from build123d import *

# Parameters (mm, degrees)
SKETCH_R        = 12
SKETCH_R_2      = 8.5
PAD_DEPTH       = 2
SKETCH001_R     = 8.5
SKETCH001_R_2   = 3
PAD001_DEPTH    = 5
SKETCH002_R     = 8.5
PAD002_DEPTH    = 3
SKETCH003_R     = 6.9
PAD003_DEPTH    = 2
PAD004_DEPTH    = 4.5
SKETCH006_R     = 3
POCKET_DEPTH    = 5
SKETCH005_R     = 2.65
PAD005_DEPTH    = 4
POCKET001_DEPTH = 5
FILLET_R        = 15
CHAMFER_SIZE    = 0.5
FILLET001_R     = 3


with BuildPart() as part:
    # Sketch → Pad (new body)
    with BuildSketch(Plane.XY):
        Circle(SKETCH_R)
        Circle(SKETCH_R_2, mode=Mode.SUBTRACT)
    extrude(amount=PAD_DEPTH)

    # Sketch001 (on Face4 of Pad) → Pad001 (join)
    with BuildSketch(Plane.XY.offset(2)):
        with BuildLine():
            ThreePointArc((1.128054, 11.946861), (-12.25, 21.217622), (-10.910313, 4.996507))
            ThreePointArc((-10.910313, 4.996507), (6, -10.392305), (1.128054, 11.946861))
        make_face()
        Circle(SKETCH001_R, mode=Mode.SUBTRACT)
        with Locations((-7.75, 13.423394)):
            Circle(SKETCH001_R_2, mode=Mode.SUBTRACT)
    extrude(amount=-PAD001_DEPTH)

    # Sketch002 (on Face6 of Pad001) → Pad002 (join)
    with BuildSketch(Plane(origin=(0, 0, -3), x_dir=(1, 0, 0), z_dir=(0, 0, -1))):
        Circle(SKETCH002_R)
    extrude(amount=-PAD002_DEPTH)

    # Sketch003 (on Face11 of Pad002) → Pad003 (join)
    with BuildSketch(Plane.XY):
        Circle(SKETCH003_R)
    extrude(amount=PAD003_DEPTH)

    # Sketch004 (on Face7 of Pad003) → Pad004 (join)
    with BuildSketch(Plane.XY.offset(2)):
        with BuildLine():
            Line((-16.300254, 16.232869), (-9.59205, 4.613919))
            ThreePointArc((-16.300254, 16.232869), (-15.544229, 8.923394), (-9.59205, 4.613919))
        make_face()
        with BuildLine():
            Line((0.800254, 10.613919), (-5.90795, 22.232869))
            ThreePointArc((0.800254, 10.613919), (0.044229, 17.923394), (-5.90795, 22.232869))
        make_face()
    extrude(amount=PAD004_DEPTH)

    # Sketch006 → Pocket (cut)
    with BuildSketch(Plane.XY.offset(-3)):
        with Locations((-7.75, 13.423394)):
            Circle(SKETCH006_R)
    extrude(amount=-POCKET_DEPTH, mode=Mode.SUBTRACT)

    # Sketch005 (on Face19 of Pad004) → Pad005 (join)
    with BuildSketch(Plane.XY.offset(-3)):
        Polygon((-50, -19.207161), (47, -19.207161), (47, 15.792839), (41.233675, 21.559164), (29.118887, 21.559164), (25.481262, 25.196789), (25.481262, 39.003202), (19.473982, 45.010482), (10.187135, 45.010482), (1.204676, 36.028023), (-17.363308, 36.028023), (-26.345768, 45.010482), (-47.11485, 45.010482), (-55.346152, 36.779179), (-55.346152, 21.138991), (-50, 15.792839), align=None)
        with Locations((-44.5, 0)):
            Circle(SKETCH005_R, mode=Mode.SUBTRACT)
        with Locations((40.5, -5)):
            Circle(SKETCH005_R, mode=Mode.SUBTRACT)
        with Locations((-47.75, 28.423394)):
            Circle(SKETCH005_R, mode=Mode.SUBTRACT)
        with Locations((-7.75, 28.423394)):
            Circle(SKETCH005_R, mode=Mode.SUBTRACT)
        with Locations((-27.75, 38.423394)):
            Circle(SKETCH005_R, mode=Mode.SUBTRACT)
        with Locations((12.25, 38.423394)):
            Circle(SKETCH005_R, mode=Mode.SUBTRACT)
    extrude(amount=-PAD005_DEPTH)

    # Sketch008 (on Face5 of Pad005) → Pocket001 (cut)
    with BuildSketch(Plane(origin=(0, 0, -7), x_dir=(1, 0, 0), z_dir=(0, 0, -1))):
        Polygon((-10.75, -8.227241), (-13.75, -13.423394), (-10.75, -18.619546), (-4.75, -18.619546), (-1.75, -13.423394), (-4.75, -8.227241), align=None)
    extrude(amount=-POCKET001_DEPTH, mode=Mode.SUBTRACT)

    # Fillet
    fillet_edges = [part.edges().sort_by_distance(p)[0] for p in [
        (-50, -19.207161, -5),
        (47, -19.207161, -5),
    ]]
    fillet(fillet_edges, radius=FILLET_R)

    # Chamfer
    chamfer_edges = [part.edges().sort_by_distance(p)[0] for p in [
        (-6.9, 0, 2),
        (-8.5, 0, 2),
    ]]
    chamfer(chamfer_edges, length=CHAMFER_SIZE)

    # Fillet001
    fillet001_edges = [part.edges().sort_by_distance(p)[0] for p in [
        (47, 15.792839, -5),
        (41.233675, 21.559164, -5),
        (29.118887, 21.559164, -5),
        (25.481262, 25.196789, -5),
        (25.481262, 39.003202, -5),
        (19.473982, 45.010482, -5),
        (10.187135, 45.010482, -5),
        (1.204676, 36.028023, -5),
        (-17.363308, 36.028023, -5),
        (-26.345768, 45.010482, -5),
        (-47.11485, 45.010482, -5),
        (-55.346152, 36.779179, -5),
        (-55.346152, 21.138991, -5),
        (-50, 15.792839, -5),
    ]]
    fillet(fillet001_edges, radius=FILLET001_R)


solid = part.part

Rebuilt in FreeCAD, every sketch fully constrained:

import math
import FreeCAD as App
import Part
import Sketcher
from FreeCAD import Vector
Q = App.Units.Quantity


def edges_at(feature, points):
    """Names of the edges that pass closest to the given points."""
    edges = feature.Shape.Edges
    near = lambda p: min(range(len(edges)), key=lambda i: edges[i].distToShape(Part.Vertex(*p))[0])
    return sorted({f"Edge{near(p) + 1}" for p in points})

doc = App.newDocument("Part")
body = doc.addObject("PartDesign::Body", "Body")

# Sketch on XY plane
sketch1 = body.newObject("Sketcher::SketchObject", "Sketch")
sketch1.AttachmentSupport = (doc.getObject("XY_Plane"), [""])
sketch1.MapMode = "FlatFace"
sketch1.addGeometry([
    Part.Circle(Vector(0, 0, 0), Vector(0, 0, 1), 12),
    Part.Circle(Vector(0, 0, 0), Vector(0, 0, 1), 8),
], False)
sketch1.addConstraint([
    Sketcher.Constraint("Coincident", 0, 3, -1, 1),
    Sketcher.Constraint("Coincident", 1, 3, -1, 1),
    Sketcher.Constraint("Diameter", 0, 24.0),
    Sketcher.Constraint("Diameter", 1, 17.0),
])
pad1 = body.newObject("PartDesign::Pad", "Pad")
pad1.Profile = sketch1
pad1.Length = 2

# Sketch on XY plane
sketch2 = body.newObject("Sketcher::SketchObject", "Sketch001")
sketch2.AttachmentSupport = (doc.getObject("XY_Plane"), [""])
sketch2.MapMode = "FlatFace"
sketch2.AttachmentOffset = App.Placement(Vector(0, 0, 2), App.Rotation())
sketch2.addGeometry([
    Part.ArcOfCircle(Part.Circle(Vector(-7.8, 13.4, 0), Vector(0, 0, 1), 9), math.radians(-9), math.radians(249)),
    Part.ArcOfCircle(Part.Circle(Vector(0, 0, 0), Vector(0, 0, 1), 12), math.radians(155), math.radians(445)),
    Part.Circle(Vector(0, 0, 0), Vector(0, 0, 1), 8.5),
    Part.Circle(Vector(-7.8, 13.4, 0), Vector(0, 0, 1), 3),
], False)
sketch2.addConstraint([
    Sketcher.Constraint("Coincident", 0, 1, 1, 2),
    Sketcher.Constraint("Coincident", 1, 1, 0, 2),
    Sketcher.Constraint("Coincident", 1, 3, -1, 1),
    Sketcher.Constraint("Coincident", 2, 3, -1, 1),
    Sketcher.Constraint("Coincident", 3, 3, 0, 3),
    Sketcher.Constraint("Diameter", 2, 17.0),
    Sketcher.Constraint("Diameter", 3, 6.0),
    Sketcher.Constraint("Radius", 0, 9.0),
    Sketcher.Constraint("Radius", 1, 12.0),
    Sketcher.Constraint("DistanceX", 0, 3, -1, 1, 7.75),
    Sketcher.Constraint("DistanceY", -1, 1, 0, 3, 13.423394),
])
pad2 = body.newObject("PartDesign::Pad", "Pad001")
pad2.Profile = sketch2
pad2.Length = 5
pad2.Reversed = True

# Sketch on XY plane
sketch3 = body.newObject("Sketcher::SketchObject", "Sketch002")
sketch3.AttachmentSupport = (doc.getObject("XY_Plane"), [""])
sketch3.MapMode = "FlatFace"
sketch3.AttachmentOffset = App.Placement(Vector(0, 0, -3), App.Rotation())
sketch3.addGeometry(Part.Circle(Vector(0, 0, 0), Vector(0, 0, 1), 8), False)
sketch3.addConstraint([
    Sketcher.Constraint("Coincident", 0, 3, -1, 1),
    Sketcher.Constraint("Diameter", 0, 17.0),
])
pad3 = body.newObject("PartDesign::Pad", "Pad002")
pad3.Profile = sketch3
pad3.Length = 3

# Sketch on XY plane
sketch4 = body.newObject("Sketcher::SketchObject", "Sketch003")
sketch4.AttachmentSupport = (doc.getObject("XY_Plane"), [""])
sketch4.MapMode = "FlatFace"
sketch4.addGeometry(Part.Circle(Vector(0, 0, 0), Vector(0, 0, 1), 7), False)
sketch4.addConstraint([
    Sketcher.Constraint("Coincident", 0, 3, -1, 1),
    Sketcher.Constraint("Diameter", 0, 13.8),
])
pad4 = body.newObject("PartDesign::Pad", "Pad003")
pad4.Profile = sketch4
pad4.Length = 2

# Sketch on XY plane
sketch5 = body.newObject("Sketcher::SketchObject", "Sketch004")
sketch5.AttachmentSupport = (doc.getObject("XY_Plane"), [""])
sketch5.MapMode = "FlatFace"
sketch5.AttachmentOffset = App.Placement(Vector(0, 0, 2), App.Rotation())
sketch5.addGeometry([
    Part.LineSegment(Vector(-10, 5, 0), Vector(-16, 16, 0)),
    Part.ArcOfCircle(Part.Circle(Vector(-8, 13, 0), Vector(0, 0, 1), 9), math.radians(162), math.radians(258)),
    Part.LineSegment(Vector(-6, 22, 0), Vector(1, 11, 0)),
    Part.ArcOfCircle(Part.Circle(Vector(-8, 13, 0), Vector(0, 0, 1), 9), math.radians(-18), math.radians(78)),
], False)
sketch5.addConstraint([
    Sketcher.Constraint("Coincident", 0, 1, 1, 2),
    Sketcher.Constraint("Coincident", 1, 1, 0, 2),
    Sketcher.Constraint("Coincident", 2, 1, 3, 2),
    Sketcher.Constraint("Coincident", 3, 1, 2, 2),
    Sketcher.Constraint("Coincident", 3, 3, 1, 3),
    Sketcher.Constraint("Equal", 1, 3),
    Sketcher.Constraint("Parallel", 0, 2),
    Sketcher.Constraint("Equal", 0, 2),
    Sketcher.Constraint("Radius", 1, 8.999999),
    Sketcher.Constraint("Angle", 0, Q("120 deg")),
    Sketcher.Constraint("DistanceY", 1, 1, 2, 1, 6.0),
    Sketcher.Constraint("DistanceX", 1, 3, -1, 1, 7.750001),
    Sketcher.Constraint("DistanceY", -1, 1, 0, 1, 4.613919),
])
pad5 = body.newObject("PartDesign::Pad", "Pad004")
pad5.Profile = sketch5
pad5.Length = 4.5

# Sketch on XY plane
sketch6 = body.newObject("Sketcher::SketchObject", "Sketch005")
sketch6.AttachmentSupport = (doc.getObject("XY_Plane"), [""])
sketch6.MapMode = "FlatFace"
sketch6.AttachmentOffset = App.Placement(Vector(0, 0, -3), App.Rotation())
sketch6.addGeometry(Part.Circle(Vector(-7.8, 13.4, 0), Vector(0, 0, 1), 3), False)
sketch6.addConstraint([
    Sketcher.Constraint("Diameter", 0, 6.0),
    Sketcher.Constraint("DistanceX", 0, 3, -1, 1, 7.75),
    Sketcher.Constraint("DistanceY", -1, 1, 0, 3, 13.423394),
])
pocket1 = body.newObject("PartDesign::Pocket", "Pocket")
pocket1.Profile = sketch6
pocket1.Length = 5

# Sketch on XY plane
sketch7 = body.newObject("Sketcher::SketchObject", "Sketch006")
sketch7.AttachmentSupport = (doc.getObject("XY_Plane"), [""])
sketch7.MapMode = "FlatFace"
sketch7.AttachmentOffset = App.Placement(Vector(0, 0, -3), App.Rotation())
sketch7.addGeometry([
    Part.LineSegment(Vector(-50, -19.2, 0), Vector(47, -19.2, 0)),  # 0
    Part.LineSegment(Vector(47, -19.2, 0), Vector(47, 15.8, 0)),  # 1
    Part.LineSegment(Vector(47, 15.8, 0), Vector(41.2, 21.6, 0)),  # 2
    Part.LineSegment(Vector(41.2, 21.6, 0), Vector(29.1, 21.6, 0)),  # 3
    Part.LineSegment(Vector(29.1, 21.6, 0), Vector(25.5, 25.2, 0)),  # 4
    Part.LineSegment(Vector(25.5, 25.2, 0), Vector(25.5, 39, 0)),  # 5
    Part.LineSegment(Vector(25.5, 39, 0), Vector(19.5, 45, 0)),  # 6
    Part.LineSegment(Vector(19.5, 45, 0), Vector(10.2, 45, 0)),  # 7
    Part.LineSegment(Vector(10.2, 45, 0), Vector(1.2, 36, 0)),  # 8
    Part.LineSegment(Vector(1.2, 36, 0), Vector(-17.4, 36, 0)),  # 9
    Part.LineSegment(Vector(-17.4, 36, 0), Vector(-26.3, 45, 0)),  # 10
    Part.LineSegment(Vector(-26.3, 45, 0), Vector(-47.1, 45, 0)),  # 11
    Part.LineSegment(Vector(-47.1, 45, 0), Vector(-55.3, 36.8, 0)),  # 12
    Part.LineSegment(Vector(-55.3, 36.8, 0), Vector(-55.3, 21.1, 0)),  # 13
    Part.LineSegment(Vector(-55.3, 21.1, 0), Vector(-50, 15.8, 0)),  # 14
    Part.LineSegment(Vector(-50, 15.8, 0), Vector(-50, -19.2, 0)),  # 15
    Part.Circle(Vector(-44.5, 0, 0), Vector(0, 0, 1), 2.6),  # 16
    Part.Circle(Vector(40.5, -5, 0), Vector(0, 0, 1), 2.6),  # 17
    Part.Circle(Vector(-47.8, 28.4, 0), Vector(0, 0, 1), 2.6),  # 18
    Part.Circle(Vector(-7.8, 28.4, 0), Vector(0, 0, 1), 2.6),  # 19
    Part.Circle(Vector(-27.8, 38.4, 0), Vector(0, 0, 1), 2.6),  # 20
    Part.Circle(Vector(12.2, 38.4, 0), Vector(0, 0, 1), 2.6),  # 21
], False)
sketch7.addConstraint([
    Sketcher.Constraint("Coincident", 0, 2, 1, 1),
    Sketcher.Constraint("Coincident", 1, 2, 2, 1),
    Sketcher.Constraint("Coincident", 2, 2, 3, 1),
    Sketcher.Constraint("Coincident", 3, 2, 4, 1),
    Sketcher.Constraint("Coincident", 4, 2, 5, 1),
    Sketcher.Constraint("Coincident", 5, 2, 6, 1),
    Sketcher.Constraint("Coincident", 6, 2, 7, 1),
    Sketcher.Constraint("Coincident", 7, 2, 8, 1),
    Sketcher.Constraint("Coincident", 8, 2, 9, 1),
    Sketcher.Constraint("Coincident", 9, 2, 10, 1),
    Sketcher.Constraint("Coincident", 10, 2, 11, 1),
    Sketcher.Constraint("Coincident", 11, 2, 12, 1),
    Sketcher.Constraint("Coincident", 12, 2, 13, 1),
    Sketcher.Constraint("Coincident", 13, 2, 14, 1),
    Sketcher.Constraint("Coincident", 14, 2, 15, 1),
    Sketcher.Constraint("Coincident", 15, 2, 0, 1),
    Sketcher.Constraint("Horizontal", 0),
    Sketcher.Constraint("Vertical", 1),
    Sketcher.Constraint("Horizontal", 3),
    Sketcher.Constraint("Vertical", 5),
    Sketcher.Constraint("Horizontal", 7),
    Sketcher.Constraint("Horizontal", 9),
    Sketcher.Constraint("Horizontal", 11),
    Sketcher.Constraint("Vertical", 13),
    Sketcher.Constraint("Vertical", 15),
    Sketcher.Constraint("Equal", 16, 17),
    Sketcher.Constraint("Equal", 17, 18),
    Sketcher.Constraint("Equal", 18, 19),
    Sketcher.Constraint("Equal", 19, 20),
    Sketcher.Constraint("Equal", 20, 21),
    Sketcher.Constraint("PointOnObject", 16, 3, -1),
    Sketcher.Constraint("Parallel", 2, 4),
    Sketcher.Constraint("Parallel", 4, 6),
    Sketcher.Constraint("Perpendicular", 6, 8),
    Sketcher.Constraint("Perpendicular", 8, 10),
    Sketcher.Constraint("Perpendicular", 10, 12),
    Sketcher.Constraint("Perpendicular", 12, 14),
    Sketcher.Constraint("Horizontal", 18, 3, 19, 3),
    Sketcher.Constraint("Horizontal", 20, 3, 21, 3),
    Sketcher.Constraint("Horizontal", 7, 2, 10, 2),
    Sketcher.Constraint("Horizontal", 1, 2, 14, 2),
    Sketcher.Constraint("Equal", 8, 10),
    Sketcher.Constraint("Diameter", 16, 5.3),
    Sketcher.Constraint("DistanceX", 0, 1, 0, 2, 97.0),
    Sketcher.Constraint("DistanceY", 1, 1, 1, 2, 35.0),
    Sketcher.Constraint("DistanceY", 17, 3, -1, 1, 5.0),
    Sketcher.Constraint("DistanceX", -1, 1, 0, 2, 47.0),
    Sketcher.Constraint("DistanceX", 16, 3, 17, 3, 85.0),
    Sketcher.Constraint("DistanceX", 18, 3, 19, 3, 40.0),
    Sketcher.Constraint("DistanceX", 18, 3, 20, 3, 20.0),
    Sketcher.Constraint("DistanceY", 18, 3, 20, 3, 10.0),
    Sketcher.Constraint("DistanceX", 19, 3, 21, 3, 20.0),
    Sketcher.Constraint("DistanceX", 16, 3, -1, 1, 44.5),
    Sketcher.Constraint("DistanceX", 18, 3, -1, 1, 47.75),
    Sketcher.Constraint("Distance", 14, 7.560601),
    Sketcher.Constraint("DistanceX", 11, 2, 11, 1, 20.769082),
    Sketcher.Constraint("Distance", 4, 5.144379),
    Sketcher.Constraint("Distance", 12, 11.64082),
    Sketcher.Constraint("DistanceX", 3, 2, 3, 1, 12.114788),
    Sketcher.Constraint("DistanceX", 7, 2, 7, 1, 9.286847),
    Sketcher.Constraint("DistanceX", 9, 2, 9, 1, 18.567984),
    Sketcher.Constraint("DistanceY", 5, 1, 5, 2, 13.806413),
    Sketcher.Constraint("DistanceY", 13, 2, 13, 1, 15.640188),
    Sketcher.Constraint("DistanceY", 0, 2, -1, 1, 19.207161),
    Sketcher.Constraint("DistanceY", -1, 1, 4, 2, 25.196789),
    Sketcher.Constraint("DistanceY", 2, 2, 21, 3, 16.86423),
])
pad6 = body.newObject("PartDesign::Pad", "Pad005")
pad6.Profile = sketch7
pad6.Length = 4
pad6.Reversed = True

# Sketch on XY plane
sketch8 = body.newObject("Sketcher::SketchObject", "Sketch007")
sketch8.AttachmentSupport = (doc.getObject("XY_Plane"), [""])
sketch8.MapMode = "FlatFace"
sketch8.AttachmentOffset = App.Placement(Vector(0, 0, -7), App.Rotation())
sketch8.addGeometry([
    Part.LineSegment(Vector(-11, 8, 0), Vector(-14, 13, 0)),  # 0
    Part.LineSegment(Vector(-14, 13, 0), Vector(-11, 19, 0)),  # 1
    Part.LineSegment(Vector(-11, 19, 0), Vector(-5, 19, 0)),  # 2
    Part.LineSegment(Vector(-5, 19, 0), Vector(-2, 13, 0)),  # 3
    Part.LineSegment(Vector(-2, 13, 0), Vector(-5, 8, 0)),  # 4
    Part.LineSegment(Vector(-5, 8, 0), Vector(-11, 8, 0)),  # 5
], False)
sketch8.addConstraint([
    Sketcher.Constraint("Coincident", 0, 2, 1, 1),
    Sketcher.Constraint("Coincident", 1, 2, 2, 1),
    Sketcher.Constraint("Coincident", 2, 2, 3, 1),
    Sketcher.Constraint("Coincident", 3, 2, 4, 1),
    Sketcher.Constraint("Coincident", 4, 2, 5, 1),
    Sketcher.Constraint("Coincident", 5, 2, 0, 1),
    Sketcher.Constraint("Horizontal", 2),
    Sketcher.Constraint("Horizontal", 5),
    Sketcher.Constraint("Parallel", 0, 3),
    Sketcher.Constraint("Parallel", 1, 4),
    Sketcher.Constraint("Horizontal", 0, 2, 3, 2),
    Sketcher.Constraint("Vertical", 2, 2, 4, 2),
    Sketcher.Constraint("Vertical", 1, 2, 5, 2),
    Sketcher.Constraint("DistanceX", 2, 1, 2, 2, 6.0),
    Sketcher.Constraint("Angle", 0, Q("119.999997 deg")),
    Sketcher.Constraint("Distance", 0, 6.0),
    Sketcher.Constraint("DistanceX", 0, 2, -1, 1, 13.75),
    Sketcher.Constraint("DistanceY", -1, 1, 4, 2, 8.227241),
])
pocket2 = body.newObject("PartDesign::Pocket", "Pocket001")
pocket2.Profile = sketch8
pocket2.Length = 5
pocket2.Reversed = True
doc.recompute()

fillet = body.newObject("PartDesign::Fillet", "Fillet")
fillet.Base = (pocket2, edges_at(pocket2, [(-50, -19.207, -5), (47, -19.207, -5)]))
fillet.Radius = 15
doc.recompute()

chamfer = body.newObject("PartDesign::Chamfer", "Chamfer")
chamfer.Base = (fillet, edges_at(fillet, [(-6.9, 0, 2), (-8.5, 0, 2)]))
chamfer.Size = 0.5
doc.recompute()

fillet2 = body.newObject("PartDesign::Fillet", "Fillet001")
fillet2.Base = (chamfer, edges_at(chamfer, [
    (47, 15.793, -5),
    (41.234, 21.559, -5),
    (29.119, 21.559, -5),
    (25.481, 25.197, -5),
    (25.481, 39.003, -5),
    (19.474, 45.01, -5),
    (10.187, 45.01, -5),
    (1.205, 36.028, -5),
    (-17.363, 36.028, -5),
    (-26.346, 45.01, -5),
    (-47.115, 45.01, -5),
    (-55.346, 36.779, -5),
    (-55.346, 21.139, -5),
    (-50, 15.793, -5),
]))
fillet2.Radius = 3

doc.recompute()
